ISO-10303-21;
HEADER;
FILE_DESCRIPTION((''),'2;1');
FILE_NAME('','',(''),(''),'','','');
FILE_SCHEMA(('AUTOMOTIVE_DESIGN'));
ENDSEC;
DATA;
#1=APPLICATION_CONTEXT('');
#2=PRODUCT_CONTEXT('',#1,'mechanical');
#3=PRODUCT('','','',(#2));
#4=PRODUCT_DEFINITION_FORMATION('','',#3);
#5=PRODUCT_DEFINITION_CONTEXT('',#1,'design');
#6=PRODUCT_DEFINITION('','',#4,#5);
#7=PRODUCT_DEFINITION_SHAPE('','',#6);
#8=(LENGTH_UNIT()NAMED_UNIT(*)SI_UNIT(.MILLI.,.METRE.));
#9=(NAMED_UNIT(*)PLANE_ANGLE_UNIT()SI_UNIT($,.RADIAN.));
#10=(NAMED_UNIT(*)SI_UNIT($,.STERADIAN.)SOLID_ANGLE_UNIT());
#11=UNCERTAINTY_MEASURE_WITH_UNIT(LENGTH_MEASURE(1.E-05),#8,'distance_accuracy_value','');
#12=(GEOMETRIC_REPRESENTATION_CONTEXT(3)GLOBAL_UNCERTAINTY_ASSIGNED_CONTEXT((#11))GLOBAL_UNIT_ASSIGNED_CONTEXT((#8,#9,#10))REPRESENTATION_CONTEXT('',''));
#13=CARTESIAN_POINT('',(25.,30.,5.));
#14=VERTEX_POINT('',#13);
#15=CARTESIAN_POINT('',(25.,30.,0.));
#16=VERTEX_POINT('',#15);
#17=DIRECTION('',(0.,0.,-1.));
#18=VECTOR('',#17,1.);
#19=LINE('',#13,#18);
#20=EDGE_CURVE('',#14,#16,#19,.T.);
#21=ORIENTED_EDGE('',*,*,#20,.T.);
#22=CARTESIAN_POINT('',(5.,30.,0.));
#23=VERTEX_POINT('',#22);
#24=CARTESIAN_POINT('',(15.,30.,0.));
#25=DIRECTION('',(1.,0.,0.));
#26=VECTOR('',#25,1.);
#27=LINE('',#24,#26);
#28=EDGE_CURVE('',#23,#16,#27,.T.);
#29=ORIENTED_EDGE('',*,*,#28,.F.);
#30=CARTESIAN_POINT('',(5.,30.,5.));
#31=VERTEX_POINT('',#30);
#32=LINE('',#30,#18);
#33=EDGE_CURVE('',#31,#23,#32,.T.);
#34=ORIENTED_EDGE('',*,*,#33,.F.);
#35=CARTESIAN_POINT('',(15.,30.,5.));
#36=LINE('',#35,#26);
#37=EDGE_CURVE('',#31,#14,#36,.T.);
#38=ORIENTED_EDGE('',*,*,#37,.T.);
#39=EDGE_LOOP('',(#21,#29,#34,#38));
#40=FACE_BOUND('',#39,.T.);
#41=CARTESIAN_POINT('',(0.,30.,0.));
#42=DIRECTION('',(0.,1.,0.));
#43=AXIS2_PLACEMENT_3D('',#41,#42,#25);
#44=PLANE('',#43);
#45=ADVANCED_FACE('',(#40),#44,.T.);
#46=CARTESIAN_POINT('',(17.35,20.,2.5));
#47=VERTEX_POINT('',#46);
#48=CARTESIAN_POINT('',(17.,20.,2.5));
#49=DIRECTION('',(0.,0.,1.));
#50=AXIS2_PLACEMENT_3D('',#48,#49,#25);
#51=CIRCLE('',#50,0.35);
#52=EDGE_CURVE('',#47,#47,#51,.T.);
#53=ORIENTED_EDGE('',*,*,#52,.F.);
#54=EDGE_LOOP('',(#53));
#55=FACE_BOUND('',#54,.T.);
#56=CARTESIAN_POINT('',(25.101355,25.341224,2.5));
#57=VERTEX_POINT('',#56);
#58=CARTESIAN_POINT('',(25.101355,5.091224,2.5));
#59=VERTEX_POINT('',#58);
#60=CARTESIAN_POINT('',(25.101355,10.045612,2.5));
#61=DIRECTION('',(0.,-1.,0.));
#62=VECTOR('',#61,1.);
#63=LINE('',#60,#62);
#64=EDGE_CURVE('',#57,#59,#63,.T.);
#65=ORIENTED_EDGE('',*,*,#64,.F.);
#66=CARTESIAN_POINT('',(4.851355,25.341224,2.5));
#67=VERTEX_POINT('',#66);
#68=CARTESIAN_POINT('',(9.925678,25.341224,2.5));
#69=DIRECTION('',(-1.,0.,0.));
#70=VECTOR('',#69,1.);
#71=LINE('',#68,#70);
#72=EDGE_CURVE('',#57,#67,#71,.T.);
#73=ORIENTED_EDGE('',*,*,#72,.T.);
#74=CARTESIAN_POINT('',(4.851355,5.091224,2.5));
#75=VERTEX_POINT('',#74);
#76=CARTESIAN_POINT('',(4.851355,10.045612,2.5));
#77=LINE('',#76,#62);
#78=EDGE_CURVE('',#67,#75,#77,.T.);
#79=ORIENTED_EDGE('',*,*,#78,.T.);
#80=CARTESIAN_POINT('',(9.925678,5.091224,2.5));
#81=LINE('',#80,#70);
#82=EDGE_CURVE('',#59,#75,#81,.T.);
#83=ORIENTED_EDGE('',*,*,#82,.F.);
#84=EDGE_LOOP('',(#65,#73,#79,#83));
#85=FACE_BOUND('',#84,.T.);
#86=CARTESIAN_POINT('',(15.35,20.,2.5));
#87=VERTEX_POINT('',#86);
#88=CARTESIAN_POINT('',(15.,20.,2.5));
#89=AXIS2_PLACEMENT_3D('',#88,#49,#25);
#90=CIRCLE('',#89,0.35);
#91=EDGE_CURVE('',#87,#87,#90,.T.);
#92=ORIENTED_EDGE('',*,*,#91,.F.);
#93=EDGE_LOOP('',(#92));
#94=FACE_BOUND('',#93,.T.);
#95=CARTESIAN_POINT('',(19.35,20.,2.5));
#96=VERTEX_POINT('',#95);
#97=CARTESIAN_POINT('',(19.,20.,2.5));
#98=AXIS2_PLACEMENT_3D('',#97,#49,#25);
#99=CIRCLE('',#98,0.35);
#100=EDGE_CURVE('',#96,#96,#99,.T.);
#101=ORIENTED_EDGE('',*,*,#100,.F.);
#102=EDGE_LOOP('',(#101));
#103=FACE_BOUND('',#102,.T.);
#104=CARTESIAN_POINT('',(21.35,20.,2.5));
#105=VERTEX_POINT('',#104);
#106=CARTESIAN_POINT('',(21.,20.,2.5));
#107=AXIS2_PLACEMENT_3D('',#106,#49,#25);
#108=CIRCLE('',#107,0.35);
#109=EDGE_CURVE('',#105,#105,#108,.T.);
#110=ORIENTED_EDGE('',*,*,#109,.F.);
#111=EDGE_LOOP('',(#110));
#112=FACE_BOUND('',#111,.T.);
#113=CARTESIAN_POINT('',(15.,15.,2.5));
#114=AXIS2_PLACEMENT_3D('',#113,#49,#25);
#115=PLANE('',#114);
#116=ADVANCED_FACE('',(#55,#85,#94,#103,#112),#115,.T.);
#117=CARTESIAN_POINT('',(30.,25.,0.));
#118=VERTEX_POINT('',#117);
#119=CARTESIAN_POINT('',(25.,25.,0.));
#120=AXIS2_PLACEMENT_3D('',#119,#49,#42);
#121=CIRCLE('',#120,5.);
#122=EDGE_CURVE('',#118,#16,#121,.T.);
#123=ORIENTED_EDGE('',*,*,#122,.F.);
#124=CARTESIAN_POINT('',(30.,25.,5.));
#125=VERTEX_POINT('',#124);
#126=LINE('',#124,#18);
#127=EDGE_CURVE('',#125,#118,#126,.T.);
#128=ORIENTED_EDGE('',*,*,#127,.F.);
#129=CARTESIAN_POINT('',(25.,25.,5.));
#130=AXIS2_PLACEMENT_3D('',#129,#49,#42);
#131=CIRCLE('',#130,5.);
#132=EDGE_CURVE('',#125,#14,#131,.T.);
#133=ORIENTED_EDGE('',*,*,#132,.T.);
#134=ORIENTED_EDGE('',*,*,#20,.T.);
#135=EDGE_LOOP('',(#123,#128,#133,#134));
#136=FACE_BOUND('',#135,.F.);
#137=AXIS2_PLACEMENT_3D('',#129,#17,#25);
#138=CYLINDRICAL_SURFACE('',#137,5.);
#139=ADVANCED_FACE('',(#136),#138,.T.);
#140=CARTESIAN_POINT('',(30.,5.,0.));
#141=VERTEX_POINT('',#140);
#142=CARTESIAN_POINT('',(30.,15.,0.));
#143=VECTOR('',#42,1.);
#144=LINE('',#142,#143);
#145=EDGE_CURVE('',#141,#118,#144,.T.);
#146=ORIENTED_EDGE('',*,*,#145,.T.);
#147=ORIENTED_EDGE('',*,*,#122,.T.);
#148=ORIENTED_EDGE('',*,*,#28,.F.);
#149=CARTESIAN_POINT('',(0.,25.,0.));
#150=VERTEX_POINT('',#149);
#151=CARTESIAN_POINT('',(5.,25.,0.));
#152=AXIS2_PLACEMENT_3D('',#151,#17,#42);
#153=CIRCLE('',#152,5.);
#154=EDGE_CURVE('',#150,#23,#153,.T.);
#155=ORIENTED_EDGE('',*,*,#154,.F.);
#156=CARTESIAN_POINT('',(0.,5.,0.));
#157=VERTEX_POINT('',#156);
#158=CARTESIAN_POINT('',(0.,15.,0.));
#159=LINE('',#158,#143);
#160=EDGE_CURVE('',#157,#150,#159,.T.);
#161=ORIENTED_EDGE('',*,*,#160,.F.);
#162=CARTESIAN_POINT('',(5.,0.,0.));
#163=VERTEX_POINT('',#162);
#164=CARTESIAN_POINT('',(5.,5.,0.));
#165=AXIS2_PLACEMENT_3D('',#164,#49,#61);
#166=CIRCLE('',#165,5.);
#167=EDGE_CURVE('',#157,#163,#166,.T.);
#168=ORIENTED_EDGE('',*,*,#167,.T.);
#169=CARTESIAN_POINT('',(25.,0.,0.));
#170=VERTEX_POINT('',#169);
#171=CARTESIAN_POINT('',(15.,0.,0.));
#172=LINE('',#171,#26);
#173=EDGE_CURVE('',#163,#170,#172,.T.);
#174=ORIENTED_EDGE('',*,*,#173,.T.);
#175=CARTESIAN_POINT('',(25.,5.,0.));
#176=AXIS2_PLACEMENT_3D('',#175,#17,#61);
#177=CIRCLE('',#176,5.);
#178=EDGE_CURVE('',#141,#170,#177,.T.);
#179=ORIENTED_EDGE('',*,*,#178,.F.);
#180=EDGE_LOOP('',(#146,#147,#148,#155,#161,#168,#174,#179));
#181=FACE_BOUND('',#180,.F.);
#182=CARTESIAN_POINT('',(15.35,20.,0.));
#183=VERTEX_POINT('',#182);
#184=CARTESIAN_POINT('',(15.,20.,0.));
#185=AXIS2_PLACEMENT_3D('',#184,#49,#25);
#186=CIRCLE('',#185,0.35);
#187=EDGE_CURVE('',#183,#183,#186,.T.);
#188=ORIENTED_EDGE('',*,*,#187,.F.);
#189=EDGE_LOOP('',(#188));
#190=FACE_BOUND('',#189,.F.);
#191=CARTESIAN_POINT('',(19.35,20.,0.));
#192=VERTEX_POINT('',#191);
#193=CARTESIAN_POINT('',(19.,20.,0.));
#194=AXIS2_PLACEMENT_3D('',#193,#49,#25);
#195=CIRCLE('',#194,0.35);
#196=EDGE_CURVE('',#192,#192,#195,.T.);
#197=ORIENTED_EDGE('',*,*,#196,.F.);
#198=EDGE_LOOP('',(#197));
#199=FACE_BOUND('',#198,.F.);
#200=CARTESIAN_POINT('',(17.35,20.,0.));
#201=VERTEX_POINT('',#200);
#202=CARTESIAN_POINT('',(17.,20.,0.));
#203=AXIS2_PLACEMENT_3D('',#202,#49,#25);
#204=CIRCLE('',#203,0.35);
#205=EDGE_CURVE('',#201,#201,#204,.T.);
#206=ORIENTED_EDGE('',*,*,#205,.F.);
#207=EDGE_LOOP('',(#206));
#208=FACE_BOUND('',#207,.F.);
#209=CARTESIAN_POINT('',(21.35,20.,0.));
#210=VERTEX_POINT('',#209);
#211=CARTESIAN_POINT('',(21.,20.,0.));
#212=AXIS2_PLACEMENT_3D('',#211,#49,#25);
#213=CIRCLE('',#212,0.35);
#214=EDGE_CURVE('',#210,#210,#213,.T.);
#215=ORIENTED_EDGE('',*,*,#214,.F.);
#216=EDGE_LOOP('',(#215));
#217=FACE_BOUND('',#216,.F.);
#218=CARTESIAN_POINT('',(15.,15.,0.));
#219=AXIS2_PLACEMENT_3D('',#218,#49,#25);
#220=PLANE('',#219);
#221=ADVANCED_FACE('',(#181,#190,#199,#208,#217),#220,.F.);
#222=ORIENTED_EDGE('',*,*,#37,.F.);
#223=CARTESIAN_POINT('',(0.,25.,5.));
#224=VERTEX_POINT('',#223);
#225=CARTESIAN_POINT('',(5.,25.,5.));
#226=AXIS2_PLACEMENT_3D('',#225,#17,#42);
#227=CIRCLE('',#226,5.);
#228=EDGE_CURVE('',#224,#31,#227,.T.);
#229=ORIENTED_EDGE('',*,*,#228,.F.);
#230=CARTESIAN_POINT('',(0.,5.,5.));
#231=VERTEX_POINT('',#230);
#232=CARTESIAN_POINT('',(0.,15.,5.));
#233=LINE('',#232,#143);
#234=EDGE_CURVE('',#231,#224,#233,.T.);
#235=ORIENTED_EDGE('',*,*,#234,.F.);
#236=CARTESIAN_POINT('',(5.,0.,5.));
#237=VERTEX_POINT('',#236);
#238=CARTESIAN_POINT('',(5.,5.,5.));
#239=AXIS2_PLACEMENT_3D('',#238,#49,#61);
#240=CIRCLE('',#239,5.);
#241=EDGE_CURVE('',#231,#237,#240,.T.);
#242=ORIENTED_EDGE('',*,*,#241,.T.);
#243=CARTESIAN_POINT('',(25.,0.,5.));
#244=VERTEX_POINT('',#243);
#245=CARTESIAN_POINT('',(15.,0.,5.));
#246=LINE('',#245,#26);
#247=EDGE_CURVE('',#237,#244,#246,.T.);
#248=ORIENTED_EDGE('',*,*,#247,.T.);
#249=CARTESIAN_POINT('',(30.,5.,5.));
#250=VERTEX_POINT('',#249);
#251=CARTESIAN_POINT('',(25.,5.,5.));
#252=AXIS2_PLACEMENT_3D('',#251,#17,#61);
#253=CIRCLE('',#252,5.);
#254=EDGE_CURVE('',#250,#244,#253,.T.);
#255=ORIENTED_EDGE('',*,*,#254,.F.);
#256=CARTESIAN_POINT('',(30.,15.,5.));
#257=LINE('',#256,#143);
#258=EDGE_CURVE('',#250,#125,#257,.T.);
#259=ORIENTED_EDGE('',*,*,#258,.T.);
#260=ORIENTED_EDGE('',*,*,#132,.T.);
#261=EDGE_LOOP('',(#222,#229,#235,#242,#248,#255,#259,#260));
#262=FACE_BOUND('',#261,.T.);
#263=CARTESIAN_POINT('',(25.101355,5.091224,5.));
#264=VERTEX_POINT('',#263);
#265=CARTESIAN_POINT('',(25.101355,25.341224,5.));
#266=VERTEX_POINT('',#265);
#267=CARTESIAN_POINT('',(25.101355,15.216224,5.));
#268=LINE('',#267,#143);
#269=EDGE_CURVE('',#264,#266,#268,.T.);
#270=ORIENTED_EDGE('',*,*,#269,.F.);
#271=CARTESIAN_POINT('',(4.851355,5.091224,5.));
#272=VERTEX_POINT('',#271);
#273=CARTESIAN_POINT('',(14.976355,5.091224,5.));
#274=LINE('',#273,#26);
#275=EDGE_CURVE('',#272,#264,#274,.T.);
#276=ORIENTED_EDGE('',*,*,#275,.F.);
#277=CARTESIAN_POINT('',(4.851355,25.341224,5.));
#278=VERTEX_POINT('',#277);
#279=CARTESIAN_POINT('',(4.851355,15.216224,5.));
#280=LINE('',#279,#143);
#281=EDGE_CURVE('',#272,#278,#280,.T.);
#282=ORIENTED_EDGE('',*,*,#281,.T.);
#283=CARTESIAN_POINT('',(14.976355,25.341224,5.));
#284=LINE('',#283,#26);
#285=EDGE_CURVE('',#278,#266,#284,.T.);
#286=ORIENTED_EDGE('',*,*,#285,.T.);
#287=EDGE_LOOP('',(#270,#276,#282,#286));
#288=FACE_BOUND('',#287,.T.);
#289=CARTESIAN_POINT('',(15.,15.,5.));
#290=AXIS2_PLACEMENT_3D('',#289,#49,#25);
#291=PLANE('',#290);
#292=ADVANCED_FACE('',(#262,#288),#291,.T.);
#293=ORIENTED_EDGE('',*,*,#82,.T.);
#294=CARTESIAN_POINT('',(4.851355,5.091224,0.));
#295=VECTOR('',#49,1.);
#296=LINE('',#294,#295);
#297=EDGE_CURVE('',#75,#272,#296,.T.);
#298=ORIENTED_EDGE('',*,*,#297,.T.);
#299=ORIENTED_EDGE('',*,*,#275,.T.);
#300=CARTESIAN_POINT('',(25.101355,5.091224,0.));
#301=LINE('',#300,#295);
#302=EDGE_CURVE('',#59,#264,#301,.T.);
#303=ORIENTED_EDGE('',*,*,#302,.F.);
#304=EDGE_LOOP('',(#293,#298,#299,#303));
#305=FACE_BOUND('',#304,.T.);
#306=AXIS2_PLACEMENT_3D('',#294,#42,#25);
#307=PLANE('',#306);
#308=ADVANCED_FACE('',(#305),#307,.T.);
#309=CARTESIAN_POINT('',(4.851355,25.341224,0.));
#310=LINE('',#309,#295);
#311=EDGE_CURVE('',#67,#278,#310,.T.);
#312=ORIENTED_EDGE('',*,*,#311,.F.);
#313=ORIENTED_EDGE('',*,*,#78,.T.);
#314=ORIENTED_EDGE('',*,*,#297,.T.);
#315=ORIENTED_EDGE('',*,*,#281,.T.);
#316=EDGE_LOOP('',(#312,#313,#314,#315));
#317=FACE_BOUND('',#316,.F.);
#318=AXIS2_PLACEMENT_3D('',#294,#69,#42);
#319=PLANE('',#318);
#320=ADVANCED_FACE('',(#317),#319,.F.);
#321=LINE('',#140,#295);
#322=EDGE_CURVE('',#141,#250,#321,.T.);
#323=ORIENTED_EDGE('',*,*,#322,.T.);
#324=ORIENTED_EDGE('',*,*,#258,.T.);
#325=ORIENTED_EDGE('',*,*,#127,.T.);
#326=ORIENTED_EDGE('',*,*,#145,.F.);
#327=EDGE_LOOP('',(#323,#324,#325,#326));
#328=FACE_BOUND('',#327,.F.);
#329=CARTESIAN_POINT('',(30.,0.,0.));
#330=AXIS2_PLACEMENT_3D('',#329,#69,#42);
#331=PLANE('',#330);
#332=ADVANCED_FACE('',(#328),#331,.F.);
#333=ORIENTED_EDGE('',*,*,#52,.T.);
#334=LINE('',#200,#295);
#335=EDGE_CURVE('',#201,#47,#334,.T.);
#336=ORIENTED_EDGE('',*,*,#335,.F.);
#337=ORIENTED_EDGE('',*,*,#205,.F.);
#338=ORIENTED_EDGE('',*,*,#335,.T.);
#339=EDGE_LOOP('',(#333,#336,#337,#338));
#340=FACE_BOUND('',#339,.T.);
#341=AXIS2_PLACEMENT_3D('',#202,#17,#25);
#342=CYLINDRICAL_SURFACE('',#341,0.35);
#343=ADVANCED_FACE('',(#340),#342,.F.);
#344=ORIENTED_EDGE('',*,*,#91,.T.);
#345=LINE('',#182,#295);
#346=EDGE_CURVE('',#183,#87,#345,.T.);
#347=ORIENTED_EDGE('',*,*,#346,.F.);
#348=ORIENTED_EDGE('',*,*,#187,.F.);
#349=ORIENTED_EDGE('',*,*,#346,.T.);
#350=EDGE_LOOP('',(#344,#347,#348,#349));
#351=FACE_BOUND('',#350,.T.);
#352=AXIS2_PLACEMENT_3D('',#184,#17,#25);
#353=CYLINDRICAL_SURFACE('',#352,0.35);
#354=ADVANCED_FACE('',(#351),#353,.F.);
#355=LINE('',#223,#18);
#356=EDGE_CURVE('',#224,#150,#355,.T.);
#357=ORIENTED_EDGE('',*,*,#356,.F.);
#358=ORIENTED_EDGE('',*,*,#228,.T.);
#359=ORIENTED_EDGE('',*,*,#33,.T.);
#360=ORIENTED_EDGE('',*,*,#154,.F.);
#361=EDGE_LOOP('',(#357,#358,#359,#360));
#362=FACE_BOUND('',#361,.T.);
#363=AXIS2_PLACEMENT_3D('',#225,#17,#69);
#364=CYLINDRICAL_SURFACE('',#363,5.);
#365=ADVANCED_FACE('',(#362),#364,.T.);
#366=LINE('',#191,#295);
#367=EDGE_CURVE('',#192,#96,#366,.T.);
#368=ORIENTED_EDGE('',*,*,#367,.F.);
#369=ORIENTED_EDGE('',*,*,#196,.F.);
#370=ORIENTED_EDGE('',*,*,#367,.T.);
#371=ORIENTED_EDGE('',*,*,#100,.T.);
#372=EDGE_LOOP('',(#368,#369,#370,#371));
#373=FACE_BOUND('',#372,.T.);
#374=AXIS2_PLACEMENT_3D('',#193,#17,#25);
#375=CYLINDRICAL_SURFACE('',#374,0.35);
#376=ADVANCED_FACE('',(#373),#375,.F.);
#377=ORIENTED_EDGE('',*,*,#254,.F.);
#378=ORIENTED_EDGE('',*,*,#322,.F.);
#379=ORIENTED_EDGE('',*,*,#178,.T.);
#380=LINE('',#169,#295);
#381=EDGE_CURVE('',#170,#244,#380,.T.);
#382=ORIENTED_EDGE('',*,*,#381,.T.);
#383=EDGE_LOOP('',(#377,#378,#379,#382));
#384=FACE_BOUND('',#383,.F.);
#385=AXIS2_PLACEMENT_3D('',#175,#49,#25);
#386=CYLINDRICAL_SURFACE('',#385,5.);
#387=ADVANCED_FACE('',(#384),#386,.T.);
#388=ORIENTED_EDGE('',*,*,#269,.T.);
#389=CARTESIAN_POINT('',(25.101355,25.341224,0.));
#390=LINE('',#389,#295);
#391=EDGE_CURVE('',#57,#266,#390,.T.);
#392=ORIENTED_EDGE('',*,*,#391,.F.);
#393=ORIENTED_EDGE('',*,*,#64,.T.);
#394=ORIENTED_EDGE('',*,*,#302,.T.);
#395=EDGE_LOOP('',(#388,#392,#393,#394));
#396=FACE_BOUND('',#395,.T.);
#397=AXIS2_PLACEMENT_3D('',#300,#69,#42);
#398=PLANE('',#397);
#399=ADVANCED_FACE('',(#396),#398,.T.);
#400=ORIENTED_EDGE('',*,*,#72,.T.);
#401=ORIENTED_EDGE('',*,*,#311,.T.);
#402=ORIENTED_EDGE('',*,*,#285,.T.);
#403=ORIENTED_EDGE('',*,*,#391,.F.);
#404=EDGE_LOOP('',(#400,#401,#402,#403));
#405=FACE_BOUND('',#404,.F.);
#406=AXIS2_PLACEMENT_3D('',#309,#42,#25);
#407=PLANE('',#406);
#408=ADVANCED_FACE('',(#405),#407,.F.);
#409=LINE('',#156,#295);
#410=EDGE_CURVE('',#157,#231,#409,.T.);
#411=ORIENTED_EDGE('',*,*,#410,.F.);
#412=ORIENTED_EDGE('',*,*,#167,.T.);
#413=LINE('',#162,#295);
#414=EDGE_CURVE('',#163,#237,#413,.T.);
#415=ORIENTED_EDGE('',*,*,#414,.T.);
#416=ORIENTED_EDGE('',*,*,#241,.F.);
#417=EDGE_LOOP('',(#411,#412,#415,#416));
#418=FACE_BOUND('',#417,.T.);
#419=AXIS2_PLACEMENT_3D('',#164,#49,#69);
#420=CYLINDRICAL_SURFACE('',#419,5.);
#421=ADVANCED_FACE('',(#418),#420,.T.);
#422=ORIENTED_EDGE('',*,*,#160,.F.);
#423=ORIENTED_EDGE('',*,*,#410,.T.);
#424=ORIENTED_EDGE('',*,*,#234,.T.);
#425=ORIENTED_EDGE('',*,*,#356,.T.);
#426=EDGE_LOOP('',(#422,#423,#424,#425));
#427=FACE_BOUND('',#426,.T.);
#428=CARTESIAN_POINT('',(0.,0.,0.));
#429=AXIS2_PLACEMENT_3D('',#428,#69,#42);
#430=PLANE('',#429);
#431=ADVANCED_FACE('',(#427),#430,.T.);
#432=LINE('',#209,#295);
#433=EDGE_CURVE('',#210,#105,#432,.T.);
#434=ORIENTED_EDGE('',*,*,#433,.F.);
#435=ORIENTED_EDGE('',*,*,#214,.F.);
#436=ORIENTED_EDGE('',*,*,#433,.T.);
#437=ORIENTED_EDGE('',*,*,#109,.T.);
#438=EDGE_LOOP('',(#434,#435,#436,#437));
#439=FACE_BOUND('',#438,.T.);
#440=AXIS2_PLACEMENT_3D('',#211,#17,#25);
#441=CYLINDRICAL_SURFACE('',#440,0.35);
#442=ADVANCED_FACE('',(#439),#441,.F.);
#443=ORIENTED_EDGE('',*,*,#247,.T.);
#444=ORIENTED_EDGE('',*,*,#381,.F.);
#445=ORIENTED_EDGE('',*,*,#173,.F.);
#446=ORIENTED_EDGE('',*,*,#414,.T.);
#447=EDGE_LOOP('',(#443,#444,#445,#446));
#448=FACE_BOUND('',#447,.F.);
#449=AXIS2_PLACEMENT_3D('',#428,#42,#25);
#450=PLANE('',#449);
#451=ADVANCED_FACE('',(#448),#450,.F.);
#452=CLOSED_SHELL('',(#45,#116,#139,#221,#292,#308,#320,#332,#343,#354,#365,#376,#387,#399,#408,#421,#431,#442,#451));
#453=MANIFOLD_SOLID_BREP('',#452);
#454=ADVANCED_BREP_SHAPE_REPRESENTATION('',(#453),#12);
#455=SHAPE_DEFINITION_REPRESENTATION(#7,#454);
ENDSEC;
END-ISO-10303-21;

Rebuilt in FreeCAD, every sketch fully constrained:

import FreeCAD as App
import Part
import Sketcher

V = App.Vector


def edges_at(feature, points):
    """Names of the edges that pass closest to the given points."""
    edges = feature.Shape.Edges
    near = lambda p: min(range(len(edges)), key=lambda i: edges[i].distToShape(Part.Vertex(*p))[0])
    return sorted({f"Edge{near(p) + 1}" for p in points})


def add_polygon(sketch, points):
    """Adds a closed chain of lines whose ends are joined by coincident constraints."""
    first, n = sketch.GeometryCount, len(points)
    for a, b in zip(points, points[1:] + points[:1]):
        sketch.addGeometry(Part.LineSegment(App.Vector(*a, 0), App.Vector(*b, 0)), False)
    for i in range(n):
        sketch.addConstraint(Sketcher.Constraint("Coincident", first + i, 2, first + (i + 1) % n, 1))

doc = App.newDocument("Part")
params = doc.addObject("Spreadsheet::Sheet", "Params")
for row, (alias, value) in enumerate([
    ("sketch1_diameter", "0.7 mm"),
    ("sketch1_width", "30 mm"),
    ("pad1_length", "2.5 mm"),
    ("sketch2_width", "30 mm"),
    ("sketch2_width2", "20.25 mm"),
    ("pad2_length", "5 mm"),
    ("fillet_radius", "5 mm"),
], start=1):
    params.set(f"A{row}", alias)
    params.set(f"B{row}", "=" + value)
    params.setAlias(f"B{row}", alias)

body = doc.addObject("PartDesign::Body", "Body")

sketch1 = body.newObject("Sketcher::SketchObject", "Sketch")
sketch1.AttachmentSupport = (doc.getObject("XY_Plane"), [""])
sketch1.MapMode = "FlatFace"
add_polygon(sketch1, [(0, 30), (0, 0), (30, 0), (30, 30)])
sketch1.addGeometry(Part.Circle(V(15, 20, 0), V(0, 0, 1), 0.35), False)
sketch1.addGeometry(Part.Circle(V(17, 20, 0), V(0, 0, 1), 0.35), False)
sketch1.addGeometry(Part.Circle(V(19, 20, 0), V(0, 0, 1), 0.35), False)
sketch1.addGeometry(Part.Circle(V(21, 20, 0), V(0, 0, 1), 0.35), False)
sketch1.addConstraint([
    Sketcher.Constraint("Vertical", 0),
    Sketcher.Constraint("Horizontal", 1),
    Sketcher.Constraint("Vertical", 2),
    Sketcher.Constraint("Horizontal", 3),
    Sketcher.Constraint("Coincident", 0, 2, -1, 1),
    Sketcher.Constraint("Equal", 4, 5),
    Sketcher.Constraint("Equal", 5, 6),
    Sketcher.Constraint("Equal", 6, 7),
    Sketcher.Constraint("Horizontal", 4, 3, 5, 3),
    Sketcher.Constraint("Horizontal", 5, 3, 6, 3),
    Sketcher.Constraint("Horizontal", 6, 3, 7, 3),
    Sketcher.Constraint("Equal", 3, 0),
    Sketcher.Constraint("Diameter", 4, 0.7),
    Sketcher.Constraint("DistanceX", 1, 1, 1, 2, 30.0),
    Sketcher.Constraint("DistanceX", -1, 1, 4, 3, 15.0),
    Sketcher.Constraint("DistanceY", -1, 1, 4, 3, 20.0),
    Sketcher.Constraint("DistanceX", -1, 1, 5, 3, 17.0),
    Sketcher.Constraint("DistanceX", -1, 1, 6, 3, 19.0),
    Sketcher.Constraint("DistanceX", -1, 1, 7, 3, 21.0),
])
sketch1.setExpression("Constraints[16]", "Params.sketch1_diameter")
sketch1.setExpression("Constraints[17]", "Params.sketch1_width")
pad1 = body.newObject("PartDesign::Pad", "Pad")
pad1.Profile = sketch1
pad1.setExpression("Length", "Params.pad1_length")

sketch2 = body.newObject("Sketcher::SketchObject", "Sketch001")
sketch2.AttachmentSupport = (doc.getObject("XY_Plane"), [""])
sketch2.MapMode = "FlatFace"
add_polygon(sketch2, [(0, 30), (0, 0), (30, 0), (30, 30)])
add_polygon(sketch2, [(25.101355, 5.091224), (4.851355, 5.091224), (4.851355, 25.341224), (25.101355, 25.341224)])
sketch2.addConstraint([
    Sketcher.Constraint("Vertical", 0),
    Sketcher.Constraint("Horizontal", 1),
    Sketcher.Constraint("Vertical", 2),
    Sketcher.Constraint("Horizontal", 3),
    Sketcher.Constraint("Horizontal", 4),
    Sketcher.Constraint("Vertical", 5),
    Sketcher.Constraint("Horizontal", 6),
    Sketcher.Constraint("Vertical", 7),
    Sketcher.Constraint("Coincident", 0, 2, -1, 1),
    Sketcher.Constraint("Equal", 3, 0),
    Sketcher.Constraint("Equal", 6, 5),
    Sketcher.Constraint("DistanceX", 1, 1, 1, 2, 30.0),
    Sketcher.Constraint("DistanceX", 4, 2, 4, 1, 20.25),
    Sketcher.Constraint("DistanceX", -1, 1, 4, 2, 4.851355),
    Sketcher.Constraint("DistanceY", -1, 1, 4, 2, 5.091224),
])
sketch2.setExpression("Constraints[19]", "Params.sketch2_width")
sketch2.setExpression("Constraints[20]", "Params.sketch2_width2")
pad2 = body.newObject("PartDesign::Pad", "Pad001")
pad2.Profile = sketch2
pad2.setExpression("Length", "Params.pad2_length")
doc.recompute()

fillet = body.newObject("PartDesign::Fillet", "Fillet")
fillet.Base = (pad2, edges_at(pad2, [
    (0, 30, 2.5),
    (0, 0, 2.5),
    (30, 30, 2.5),
    (30, 0, 2.5),
]))
fillet.setExpression("Radius", "Params.fillet_radius")

doc.recompute()
